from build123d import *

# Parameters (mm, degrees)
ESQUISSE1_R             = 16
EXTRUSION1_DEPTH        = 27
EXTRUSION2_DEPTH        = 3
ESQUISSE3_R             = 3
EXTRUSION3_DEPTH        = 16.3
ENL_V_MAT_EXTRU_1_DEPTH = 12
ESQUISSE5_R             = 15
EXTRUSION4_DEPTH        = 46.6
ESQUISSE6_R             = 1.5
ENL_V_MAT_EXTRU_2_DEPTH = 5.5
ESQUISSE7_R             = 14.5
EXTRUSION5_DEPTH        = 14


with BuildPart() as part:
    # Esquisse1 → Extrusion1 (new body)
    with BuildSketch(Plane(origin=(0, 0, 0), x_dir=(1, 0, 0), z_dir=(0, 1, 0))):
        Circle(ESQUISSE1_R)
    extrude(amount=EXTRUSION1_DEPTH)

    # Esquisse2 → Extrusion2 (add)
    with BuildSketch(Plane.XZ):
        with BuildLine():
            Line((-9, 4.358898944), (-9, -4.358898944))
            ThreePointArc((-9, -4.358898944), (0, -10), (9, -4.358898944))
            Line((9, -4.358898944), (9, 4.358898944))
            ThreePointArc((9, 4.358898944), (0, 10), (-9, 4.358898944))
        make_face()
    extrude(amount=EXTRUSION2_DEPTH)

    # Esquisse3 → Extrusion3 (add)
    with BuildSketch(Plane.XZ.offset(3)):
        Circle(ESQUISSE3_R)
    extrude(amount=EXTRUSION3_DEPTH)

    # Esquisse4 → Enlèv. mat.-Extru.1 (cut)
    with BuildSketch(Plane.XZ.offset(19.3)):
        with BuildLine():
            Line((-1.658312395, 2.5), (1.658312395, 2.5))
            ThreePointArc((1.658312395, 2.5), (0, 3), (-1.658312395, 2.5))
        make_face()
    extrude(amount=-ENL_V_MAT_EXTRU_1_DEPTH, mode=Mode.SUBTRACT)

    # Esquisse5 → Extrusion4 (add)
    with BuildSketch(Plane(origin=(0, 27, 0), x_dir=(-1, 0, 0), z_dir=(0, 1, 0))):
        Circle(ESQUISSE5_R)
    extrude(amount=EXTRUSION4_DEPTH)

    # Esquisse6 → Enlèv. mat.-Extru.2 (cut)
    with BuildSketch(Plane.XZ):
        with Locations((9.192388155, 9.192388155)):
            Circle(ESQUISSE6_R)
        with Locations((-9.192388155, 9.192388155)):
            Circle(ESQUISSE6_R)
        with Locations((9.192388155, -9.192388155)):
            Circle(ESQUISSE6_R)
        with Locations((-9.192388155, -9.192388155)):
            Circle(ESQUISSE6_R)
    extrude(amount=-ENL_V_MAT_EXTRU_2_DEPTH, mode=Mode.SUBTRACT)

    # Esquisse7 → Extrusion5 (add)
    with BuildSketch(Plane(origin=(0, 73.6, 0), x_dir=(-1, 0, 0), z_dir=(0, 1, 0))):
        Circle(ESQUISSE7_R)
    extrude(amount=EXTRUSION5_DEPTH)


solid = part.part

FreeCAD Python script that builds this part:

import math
import FreeCAD as App
import Part
import Sketcher
Q = App.Units.Quantity

doc = App.newDocument("Part")
body = doc.addObject("PartDesign::Body", "Body")

# Sketch on XZ plane
sketch1 = body.newObject("Sketcher::SketchObject", "Sketch")
sketch1.AttachmentSupport = (doc.getObject("XZ_Plane"), [""])
sketch1.MapMode = "FlatFace"
sketch1.addGeometry(Part.Circle(App.Vector(0, 0, 0), App.Vector(0, 0, 1), 16), False)
sketch1.addConstraint([
    Sketcher.Constraint("Coincident", 0, 3, -1, 1),
    Sketcher.Constraint("Diameter", 0, Q("32 mm")),
])
pad1 = body.newObject("PartDesign::Pad", "Pad")
pad1.Profile = sketch1
pad1.Length = 27
pad1.Reversed = True

# Sketch on XZ plane
sketch2 = body.newObject("Sketcher::SketchObject", "Sketch001")
sketch2.AttachmentSupport = (doc.getObject("XZ_Plane"), [""])
sketch2.MapMode = "FlatFace"
sketch2.addGeometry([
    Part.LineSegment(App.Vector(-9, 4, 0), App.Vector(-9, -4, 0)),
    Part.ArcOfCircle(Part.Circle(App.Vector(0, 0, 0), App.Vector(0, 0, 1), 10), math.radians(-154), math.radians(-26)),
    Part.LineSegment(App.Vector(9, -4, 0), App.Vector(9, 4, 0)),
    Part.ArcOfCircle(Part.Circle(App.Vector(0, 0, 0), App.Vector(0, 0, 1), 10), math.radians(26), math.radians(154)),
], False)
sketch2.addConstraint([
    Sketcher.Constraint("Coincident", 0, 2, 1, 1),
    Sketcher.Constraint("Coincident", 1, 2, 2, 1),
    Sketcher.Constraint("Coincident", 2, 2, 3, 1),
    Sketcher.Constraint("Coincident", 3, 2, 0, 1),
    Sketcher.Constraint("Vertical", 0),
    Sketcher.Constraint("Vertical", 2),
    Sketcher.Constraint("Coincident", 1, 3, -1, 1),
    Sketcher.Constraint("Coincident", 3, 3, -1, 1),
    Sketcher.Constraint("Equal", 1, 3),
    Sketcher.Constraint("Horizontal", 0, 2, 1, 2),
    Sketcher.Constraint("Radius", 1, Q("10 mm")),
    Sketcher.Constraint("DistanceX", 0, 2, -1, 1, Q("9 mm")),
])
pad2 = body.newObject("PartDesign::Pad", "Pad001")
pad2.Profile = sketch2
pad2.Length = 3

# Sketch on XZ plane
sketch3 = body.newObject("Sketcher::SketchObject", "Sketch002")
sketch3.AttachmentSupport = (doc.getObject("XZ_Plane"), [""])
sketch3.MapMode = "FlatFace"
sketch3.AttachmentOffset = App.Placement(App.Vector(0, 0, 3), App.Rotation())
sketch3.addGeometry(Part.Circle(App.Vector(0, 0, 0), App.Vector(0, 0, 1), 3), False)
sketch3.addConstraint([
    Sketcher.Constraint("Coincident", 0, 3, -1, 1),
    Sketcher.Constraint("Diameter", 0, Q("6 mm")),
])
pad3 = body.newObject("PartDesign::Pad", "Pad002")
pad3.Profile = sketch3
pad3.Length = 16.3

# Sketch on XZ plane
sketch4 = body.newObject("Sketcher::SketchObject", "Sketch003")
sketch4.AttachmentSupport = (doc.getObject("XZ_Plane"), [""])
sketch4.MapMode = "FlatFace"
sketch4.AttachmentOffset = App.Placement(App.Vector(0, 0, 19.3), App.Rotation())
sketch4.addGeometry([
    Part.LineSegment(App.Vector(-1.7, 2.5, 0), App.Vector(1.7, 2.5, 0)),
    Part.ArcOfCircle(Part.Circle(App.Vector(0, 0, 0), App.Vector(0, 0, 1), 3), math.radians(56), math.radians(124)),
], False)
sketch4.addConstraint([
    Sketcher.Constraint("Coincident", 0, 1, 1, 2),
    Sketcher.Constraint("Coincident", 1, 1, 0, 2),
    Sketcher.Constraint("Horizontal", 0),
    Sketcher.Constraint("Coincident", 1, 3, -1, 1),
    Sketcher.Constraint("Radius", 1, Q("3 mm")),
    Sketcher.Constraint("DistanceY", -1, 1, 0, 1, Q("2.5 mm")),
])
pocket1 = body.newObject("PartDesign::Pocket", "Pocket")
pocket1.Profile = sketch4
pocket1.Length = 12

# Sketch on XZ plane
sketch5 = body.newObject("Sketcher::SketchObject", "Sketch004")
sketch5.AttachmentSupport = (doc.getObject("XZ_Plane"), [""])
sketch5.MapMode = "FlatFace"
sketch5.AttachmentOffset = App.Placement(App.Vector(0, 0, -27), App.Rotation())
sketch5.addGeometry(Part.Circle(App.Vector(0, 0, 0), App.Vector(0, 0, 1), 15), False)
sketch5.addConstraint([
    Sketcher.Constraint("Coincident", 0, 3, -1, 1),
    Sketcher.Constraint("Diameter", 0, Q("30 mm")),
])
pad4 = body.newObject("PartDesign::Pad", "Pad003")
pad4.Profile = sketch5
pad4.Length = 46.6
pad4.Reversed = True

# Sketch on XZ plane
sketch6 = body.newObject("Sketcher::SketchObject", "Sketch005")
sketch6.AttachmentSupport = (doc.getObject("XZ_Plane"), [""])
sketch6.MapMode = "FlatFace"
sketch6.addGeometry([
    Part.Circle(App.Vector(9.2, 9.2, 0), App.Vector(0, 0, 1), 1.5),
    Part.Circle(App.Vector(-9.2, 9.2, 0), App.Vector(0, 0, 1), 1.5),
    Part.Circle(App.Vector(9.2, -9.2, 0), App.Vector(0, 0, 1), 1.5),
    Part.Circle(App.Vector(-9.2, -9.2, 0), App.Vector(0, 0, 1), 1.5),
], False)
sketch6.addConstraint([
    Sketcher.Constraint("Equal", 0, 1),
    Sketcher.Constraint("Equal", 1, 2),
    Sketcher.Constraint("Equal", 2, 3),
    Sketcher.Constraint("Symmetric", 1, 3, 2, 3, -1, 1),
    Sketcher.Constraint("Symmetric", 0, 3, 3, 3, -1, 1),
    Sketcher.Constraint("Symmetric", 0, 3, 1, 3, -2),
    Sketcher.Constraint("Diameter", 0, Q("3 mm")),
    Sketcher.Constraint("DistanceX", -1, 1, 0, 3, Q("9.192388 mm")),
    Sketcher.Constraint("DistanceY", -1, 1, 0, 3, Q("9.192388 mm")),
])
pocket2 = body.newObject("PartDesign::Pocket", "Pocket001")
pocket2.Profile = sketch6
pocket2.Length = 5.5

# Sketch on XZ plane
sketch7 = body.newObject("Sketcher::SketchObject", "Sketch006")
sketch7.AttachmentSupport = (doc.getObject("XZ_Plane"), [""])
sketch7.MapMode = "FlatFace"
sketch7.AttachmentOffset = App.Placement(App.Vector(0, 0, -73.6), App.Rotation())
sketch7.addGeometry(Part.Circle(App.Vector(0, 0, 0), App.Vector(0, 0, 1), 14), False)
sketch7.addConstraint([
    Sketcher.Constraint("Coincident", 0, 3, -1, 1),
    Sketcher.Constraint("Diameter", 0, Q("29 mm")),
])
pad5 = body.newObject("PartDesign::Pad", "Pad004")
pad5.Profile = sketch7
pad5.Length = 14
pad5.Reversed = True

doc.recompute()
